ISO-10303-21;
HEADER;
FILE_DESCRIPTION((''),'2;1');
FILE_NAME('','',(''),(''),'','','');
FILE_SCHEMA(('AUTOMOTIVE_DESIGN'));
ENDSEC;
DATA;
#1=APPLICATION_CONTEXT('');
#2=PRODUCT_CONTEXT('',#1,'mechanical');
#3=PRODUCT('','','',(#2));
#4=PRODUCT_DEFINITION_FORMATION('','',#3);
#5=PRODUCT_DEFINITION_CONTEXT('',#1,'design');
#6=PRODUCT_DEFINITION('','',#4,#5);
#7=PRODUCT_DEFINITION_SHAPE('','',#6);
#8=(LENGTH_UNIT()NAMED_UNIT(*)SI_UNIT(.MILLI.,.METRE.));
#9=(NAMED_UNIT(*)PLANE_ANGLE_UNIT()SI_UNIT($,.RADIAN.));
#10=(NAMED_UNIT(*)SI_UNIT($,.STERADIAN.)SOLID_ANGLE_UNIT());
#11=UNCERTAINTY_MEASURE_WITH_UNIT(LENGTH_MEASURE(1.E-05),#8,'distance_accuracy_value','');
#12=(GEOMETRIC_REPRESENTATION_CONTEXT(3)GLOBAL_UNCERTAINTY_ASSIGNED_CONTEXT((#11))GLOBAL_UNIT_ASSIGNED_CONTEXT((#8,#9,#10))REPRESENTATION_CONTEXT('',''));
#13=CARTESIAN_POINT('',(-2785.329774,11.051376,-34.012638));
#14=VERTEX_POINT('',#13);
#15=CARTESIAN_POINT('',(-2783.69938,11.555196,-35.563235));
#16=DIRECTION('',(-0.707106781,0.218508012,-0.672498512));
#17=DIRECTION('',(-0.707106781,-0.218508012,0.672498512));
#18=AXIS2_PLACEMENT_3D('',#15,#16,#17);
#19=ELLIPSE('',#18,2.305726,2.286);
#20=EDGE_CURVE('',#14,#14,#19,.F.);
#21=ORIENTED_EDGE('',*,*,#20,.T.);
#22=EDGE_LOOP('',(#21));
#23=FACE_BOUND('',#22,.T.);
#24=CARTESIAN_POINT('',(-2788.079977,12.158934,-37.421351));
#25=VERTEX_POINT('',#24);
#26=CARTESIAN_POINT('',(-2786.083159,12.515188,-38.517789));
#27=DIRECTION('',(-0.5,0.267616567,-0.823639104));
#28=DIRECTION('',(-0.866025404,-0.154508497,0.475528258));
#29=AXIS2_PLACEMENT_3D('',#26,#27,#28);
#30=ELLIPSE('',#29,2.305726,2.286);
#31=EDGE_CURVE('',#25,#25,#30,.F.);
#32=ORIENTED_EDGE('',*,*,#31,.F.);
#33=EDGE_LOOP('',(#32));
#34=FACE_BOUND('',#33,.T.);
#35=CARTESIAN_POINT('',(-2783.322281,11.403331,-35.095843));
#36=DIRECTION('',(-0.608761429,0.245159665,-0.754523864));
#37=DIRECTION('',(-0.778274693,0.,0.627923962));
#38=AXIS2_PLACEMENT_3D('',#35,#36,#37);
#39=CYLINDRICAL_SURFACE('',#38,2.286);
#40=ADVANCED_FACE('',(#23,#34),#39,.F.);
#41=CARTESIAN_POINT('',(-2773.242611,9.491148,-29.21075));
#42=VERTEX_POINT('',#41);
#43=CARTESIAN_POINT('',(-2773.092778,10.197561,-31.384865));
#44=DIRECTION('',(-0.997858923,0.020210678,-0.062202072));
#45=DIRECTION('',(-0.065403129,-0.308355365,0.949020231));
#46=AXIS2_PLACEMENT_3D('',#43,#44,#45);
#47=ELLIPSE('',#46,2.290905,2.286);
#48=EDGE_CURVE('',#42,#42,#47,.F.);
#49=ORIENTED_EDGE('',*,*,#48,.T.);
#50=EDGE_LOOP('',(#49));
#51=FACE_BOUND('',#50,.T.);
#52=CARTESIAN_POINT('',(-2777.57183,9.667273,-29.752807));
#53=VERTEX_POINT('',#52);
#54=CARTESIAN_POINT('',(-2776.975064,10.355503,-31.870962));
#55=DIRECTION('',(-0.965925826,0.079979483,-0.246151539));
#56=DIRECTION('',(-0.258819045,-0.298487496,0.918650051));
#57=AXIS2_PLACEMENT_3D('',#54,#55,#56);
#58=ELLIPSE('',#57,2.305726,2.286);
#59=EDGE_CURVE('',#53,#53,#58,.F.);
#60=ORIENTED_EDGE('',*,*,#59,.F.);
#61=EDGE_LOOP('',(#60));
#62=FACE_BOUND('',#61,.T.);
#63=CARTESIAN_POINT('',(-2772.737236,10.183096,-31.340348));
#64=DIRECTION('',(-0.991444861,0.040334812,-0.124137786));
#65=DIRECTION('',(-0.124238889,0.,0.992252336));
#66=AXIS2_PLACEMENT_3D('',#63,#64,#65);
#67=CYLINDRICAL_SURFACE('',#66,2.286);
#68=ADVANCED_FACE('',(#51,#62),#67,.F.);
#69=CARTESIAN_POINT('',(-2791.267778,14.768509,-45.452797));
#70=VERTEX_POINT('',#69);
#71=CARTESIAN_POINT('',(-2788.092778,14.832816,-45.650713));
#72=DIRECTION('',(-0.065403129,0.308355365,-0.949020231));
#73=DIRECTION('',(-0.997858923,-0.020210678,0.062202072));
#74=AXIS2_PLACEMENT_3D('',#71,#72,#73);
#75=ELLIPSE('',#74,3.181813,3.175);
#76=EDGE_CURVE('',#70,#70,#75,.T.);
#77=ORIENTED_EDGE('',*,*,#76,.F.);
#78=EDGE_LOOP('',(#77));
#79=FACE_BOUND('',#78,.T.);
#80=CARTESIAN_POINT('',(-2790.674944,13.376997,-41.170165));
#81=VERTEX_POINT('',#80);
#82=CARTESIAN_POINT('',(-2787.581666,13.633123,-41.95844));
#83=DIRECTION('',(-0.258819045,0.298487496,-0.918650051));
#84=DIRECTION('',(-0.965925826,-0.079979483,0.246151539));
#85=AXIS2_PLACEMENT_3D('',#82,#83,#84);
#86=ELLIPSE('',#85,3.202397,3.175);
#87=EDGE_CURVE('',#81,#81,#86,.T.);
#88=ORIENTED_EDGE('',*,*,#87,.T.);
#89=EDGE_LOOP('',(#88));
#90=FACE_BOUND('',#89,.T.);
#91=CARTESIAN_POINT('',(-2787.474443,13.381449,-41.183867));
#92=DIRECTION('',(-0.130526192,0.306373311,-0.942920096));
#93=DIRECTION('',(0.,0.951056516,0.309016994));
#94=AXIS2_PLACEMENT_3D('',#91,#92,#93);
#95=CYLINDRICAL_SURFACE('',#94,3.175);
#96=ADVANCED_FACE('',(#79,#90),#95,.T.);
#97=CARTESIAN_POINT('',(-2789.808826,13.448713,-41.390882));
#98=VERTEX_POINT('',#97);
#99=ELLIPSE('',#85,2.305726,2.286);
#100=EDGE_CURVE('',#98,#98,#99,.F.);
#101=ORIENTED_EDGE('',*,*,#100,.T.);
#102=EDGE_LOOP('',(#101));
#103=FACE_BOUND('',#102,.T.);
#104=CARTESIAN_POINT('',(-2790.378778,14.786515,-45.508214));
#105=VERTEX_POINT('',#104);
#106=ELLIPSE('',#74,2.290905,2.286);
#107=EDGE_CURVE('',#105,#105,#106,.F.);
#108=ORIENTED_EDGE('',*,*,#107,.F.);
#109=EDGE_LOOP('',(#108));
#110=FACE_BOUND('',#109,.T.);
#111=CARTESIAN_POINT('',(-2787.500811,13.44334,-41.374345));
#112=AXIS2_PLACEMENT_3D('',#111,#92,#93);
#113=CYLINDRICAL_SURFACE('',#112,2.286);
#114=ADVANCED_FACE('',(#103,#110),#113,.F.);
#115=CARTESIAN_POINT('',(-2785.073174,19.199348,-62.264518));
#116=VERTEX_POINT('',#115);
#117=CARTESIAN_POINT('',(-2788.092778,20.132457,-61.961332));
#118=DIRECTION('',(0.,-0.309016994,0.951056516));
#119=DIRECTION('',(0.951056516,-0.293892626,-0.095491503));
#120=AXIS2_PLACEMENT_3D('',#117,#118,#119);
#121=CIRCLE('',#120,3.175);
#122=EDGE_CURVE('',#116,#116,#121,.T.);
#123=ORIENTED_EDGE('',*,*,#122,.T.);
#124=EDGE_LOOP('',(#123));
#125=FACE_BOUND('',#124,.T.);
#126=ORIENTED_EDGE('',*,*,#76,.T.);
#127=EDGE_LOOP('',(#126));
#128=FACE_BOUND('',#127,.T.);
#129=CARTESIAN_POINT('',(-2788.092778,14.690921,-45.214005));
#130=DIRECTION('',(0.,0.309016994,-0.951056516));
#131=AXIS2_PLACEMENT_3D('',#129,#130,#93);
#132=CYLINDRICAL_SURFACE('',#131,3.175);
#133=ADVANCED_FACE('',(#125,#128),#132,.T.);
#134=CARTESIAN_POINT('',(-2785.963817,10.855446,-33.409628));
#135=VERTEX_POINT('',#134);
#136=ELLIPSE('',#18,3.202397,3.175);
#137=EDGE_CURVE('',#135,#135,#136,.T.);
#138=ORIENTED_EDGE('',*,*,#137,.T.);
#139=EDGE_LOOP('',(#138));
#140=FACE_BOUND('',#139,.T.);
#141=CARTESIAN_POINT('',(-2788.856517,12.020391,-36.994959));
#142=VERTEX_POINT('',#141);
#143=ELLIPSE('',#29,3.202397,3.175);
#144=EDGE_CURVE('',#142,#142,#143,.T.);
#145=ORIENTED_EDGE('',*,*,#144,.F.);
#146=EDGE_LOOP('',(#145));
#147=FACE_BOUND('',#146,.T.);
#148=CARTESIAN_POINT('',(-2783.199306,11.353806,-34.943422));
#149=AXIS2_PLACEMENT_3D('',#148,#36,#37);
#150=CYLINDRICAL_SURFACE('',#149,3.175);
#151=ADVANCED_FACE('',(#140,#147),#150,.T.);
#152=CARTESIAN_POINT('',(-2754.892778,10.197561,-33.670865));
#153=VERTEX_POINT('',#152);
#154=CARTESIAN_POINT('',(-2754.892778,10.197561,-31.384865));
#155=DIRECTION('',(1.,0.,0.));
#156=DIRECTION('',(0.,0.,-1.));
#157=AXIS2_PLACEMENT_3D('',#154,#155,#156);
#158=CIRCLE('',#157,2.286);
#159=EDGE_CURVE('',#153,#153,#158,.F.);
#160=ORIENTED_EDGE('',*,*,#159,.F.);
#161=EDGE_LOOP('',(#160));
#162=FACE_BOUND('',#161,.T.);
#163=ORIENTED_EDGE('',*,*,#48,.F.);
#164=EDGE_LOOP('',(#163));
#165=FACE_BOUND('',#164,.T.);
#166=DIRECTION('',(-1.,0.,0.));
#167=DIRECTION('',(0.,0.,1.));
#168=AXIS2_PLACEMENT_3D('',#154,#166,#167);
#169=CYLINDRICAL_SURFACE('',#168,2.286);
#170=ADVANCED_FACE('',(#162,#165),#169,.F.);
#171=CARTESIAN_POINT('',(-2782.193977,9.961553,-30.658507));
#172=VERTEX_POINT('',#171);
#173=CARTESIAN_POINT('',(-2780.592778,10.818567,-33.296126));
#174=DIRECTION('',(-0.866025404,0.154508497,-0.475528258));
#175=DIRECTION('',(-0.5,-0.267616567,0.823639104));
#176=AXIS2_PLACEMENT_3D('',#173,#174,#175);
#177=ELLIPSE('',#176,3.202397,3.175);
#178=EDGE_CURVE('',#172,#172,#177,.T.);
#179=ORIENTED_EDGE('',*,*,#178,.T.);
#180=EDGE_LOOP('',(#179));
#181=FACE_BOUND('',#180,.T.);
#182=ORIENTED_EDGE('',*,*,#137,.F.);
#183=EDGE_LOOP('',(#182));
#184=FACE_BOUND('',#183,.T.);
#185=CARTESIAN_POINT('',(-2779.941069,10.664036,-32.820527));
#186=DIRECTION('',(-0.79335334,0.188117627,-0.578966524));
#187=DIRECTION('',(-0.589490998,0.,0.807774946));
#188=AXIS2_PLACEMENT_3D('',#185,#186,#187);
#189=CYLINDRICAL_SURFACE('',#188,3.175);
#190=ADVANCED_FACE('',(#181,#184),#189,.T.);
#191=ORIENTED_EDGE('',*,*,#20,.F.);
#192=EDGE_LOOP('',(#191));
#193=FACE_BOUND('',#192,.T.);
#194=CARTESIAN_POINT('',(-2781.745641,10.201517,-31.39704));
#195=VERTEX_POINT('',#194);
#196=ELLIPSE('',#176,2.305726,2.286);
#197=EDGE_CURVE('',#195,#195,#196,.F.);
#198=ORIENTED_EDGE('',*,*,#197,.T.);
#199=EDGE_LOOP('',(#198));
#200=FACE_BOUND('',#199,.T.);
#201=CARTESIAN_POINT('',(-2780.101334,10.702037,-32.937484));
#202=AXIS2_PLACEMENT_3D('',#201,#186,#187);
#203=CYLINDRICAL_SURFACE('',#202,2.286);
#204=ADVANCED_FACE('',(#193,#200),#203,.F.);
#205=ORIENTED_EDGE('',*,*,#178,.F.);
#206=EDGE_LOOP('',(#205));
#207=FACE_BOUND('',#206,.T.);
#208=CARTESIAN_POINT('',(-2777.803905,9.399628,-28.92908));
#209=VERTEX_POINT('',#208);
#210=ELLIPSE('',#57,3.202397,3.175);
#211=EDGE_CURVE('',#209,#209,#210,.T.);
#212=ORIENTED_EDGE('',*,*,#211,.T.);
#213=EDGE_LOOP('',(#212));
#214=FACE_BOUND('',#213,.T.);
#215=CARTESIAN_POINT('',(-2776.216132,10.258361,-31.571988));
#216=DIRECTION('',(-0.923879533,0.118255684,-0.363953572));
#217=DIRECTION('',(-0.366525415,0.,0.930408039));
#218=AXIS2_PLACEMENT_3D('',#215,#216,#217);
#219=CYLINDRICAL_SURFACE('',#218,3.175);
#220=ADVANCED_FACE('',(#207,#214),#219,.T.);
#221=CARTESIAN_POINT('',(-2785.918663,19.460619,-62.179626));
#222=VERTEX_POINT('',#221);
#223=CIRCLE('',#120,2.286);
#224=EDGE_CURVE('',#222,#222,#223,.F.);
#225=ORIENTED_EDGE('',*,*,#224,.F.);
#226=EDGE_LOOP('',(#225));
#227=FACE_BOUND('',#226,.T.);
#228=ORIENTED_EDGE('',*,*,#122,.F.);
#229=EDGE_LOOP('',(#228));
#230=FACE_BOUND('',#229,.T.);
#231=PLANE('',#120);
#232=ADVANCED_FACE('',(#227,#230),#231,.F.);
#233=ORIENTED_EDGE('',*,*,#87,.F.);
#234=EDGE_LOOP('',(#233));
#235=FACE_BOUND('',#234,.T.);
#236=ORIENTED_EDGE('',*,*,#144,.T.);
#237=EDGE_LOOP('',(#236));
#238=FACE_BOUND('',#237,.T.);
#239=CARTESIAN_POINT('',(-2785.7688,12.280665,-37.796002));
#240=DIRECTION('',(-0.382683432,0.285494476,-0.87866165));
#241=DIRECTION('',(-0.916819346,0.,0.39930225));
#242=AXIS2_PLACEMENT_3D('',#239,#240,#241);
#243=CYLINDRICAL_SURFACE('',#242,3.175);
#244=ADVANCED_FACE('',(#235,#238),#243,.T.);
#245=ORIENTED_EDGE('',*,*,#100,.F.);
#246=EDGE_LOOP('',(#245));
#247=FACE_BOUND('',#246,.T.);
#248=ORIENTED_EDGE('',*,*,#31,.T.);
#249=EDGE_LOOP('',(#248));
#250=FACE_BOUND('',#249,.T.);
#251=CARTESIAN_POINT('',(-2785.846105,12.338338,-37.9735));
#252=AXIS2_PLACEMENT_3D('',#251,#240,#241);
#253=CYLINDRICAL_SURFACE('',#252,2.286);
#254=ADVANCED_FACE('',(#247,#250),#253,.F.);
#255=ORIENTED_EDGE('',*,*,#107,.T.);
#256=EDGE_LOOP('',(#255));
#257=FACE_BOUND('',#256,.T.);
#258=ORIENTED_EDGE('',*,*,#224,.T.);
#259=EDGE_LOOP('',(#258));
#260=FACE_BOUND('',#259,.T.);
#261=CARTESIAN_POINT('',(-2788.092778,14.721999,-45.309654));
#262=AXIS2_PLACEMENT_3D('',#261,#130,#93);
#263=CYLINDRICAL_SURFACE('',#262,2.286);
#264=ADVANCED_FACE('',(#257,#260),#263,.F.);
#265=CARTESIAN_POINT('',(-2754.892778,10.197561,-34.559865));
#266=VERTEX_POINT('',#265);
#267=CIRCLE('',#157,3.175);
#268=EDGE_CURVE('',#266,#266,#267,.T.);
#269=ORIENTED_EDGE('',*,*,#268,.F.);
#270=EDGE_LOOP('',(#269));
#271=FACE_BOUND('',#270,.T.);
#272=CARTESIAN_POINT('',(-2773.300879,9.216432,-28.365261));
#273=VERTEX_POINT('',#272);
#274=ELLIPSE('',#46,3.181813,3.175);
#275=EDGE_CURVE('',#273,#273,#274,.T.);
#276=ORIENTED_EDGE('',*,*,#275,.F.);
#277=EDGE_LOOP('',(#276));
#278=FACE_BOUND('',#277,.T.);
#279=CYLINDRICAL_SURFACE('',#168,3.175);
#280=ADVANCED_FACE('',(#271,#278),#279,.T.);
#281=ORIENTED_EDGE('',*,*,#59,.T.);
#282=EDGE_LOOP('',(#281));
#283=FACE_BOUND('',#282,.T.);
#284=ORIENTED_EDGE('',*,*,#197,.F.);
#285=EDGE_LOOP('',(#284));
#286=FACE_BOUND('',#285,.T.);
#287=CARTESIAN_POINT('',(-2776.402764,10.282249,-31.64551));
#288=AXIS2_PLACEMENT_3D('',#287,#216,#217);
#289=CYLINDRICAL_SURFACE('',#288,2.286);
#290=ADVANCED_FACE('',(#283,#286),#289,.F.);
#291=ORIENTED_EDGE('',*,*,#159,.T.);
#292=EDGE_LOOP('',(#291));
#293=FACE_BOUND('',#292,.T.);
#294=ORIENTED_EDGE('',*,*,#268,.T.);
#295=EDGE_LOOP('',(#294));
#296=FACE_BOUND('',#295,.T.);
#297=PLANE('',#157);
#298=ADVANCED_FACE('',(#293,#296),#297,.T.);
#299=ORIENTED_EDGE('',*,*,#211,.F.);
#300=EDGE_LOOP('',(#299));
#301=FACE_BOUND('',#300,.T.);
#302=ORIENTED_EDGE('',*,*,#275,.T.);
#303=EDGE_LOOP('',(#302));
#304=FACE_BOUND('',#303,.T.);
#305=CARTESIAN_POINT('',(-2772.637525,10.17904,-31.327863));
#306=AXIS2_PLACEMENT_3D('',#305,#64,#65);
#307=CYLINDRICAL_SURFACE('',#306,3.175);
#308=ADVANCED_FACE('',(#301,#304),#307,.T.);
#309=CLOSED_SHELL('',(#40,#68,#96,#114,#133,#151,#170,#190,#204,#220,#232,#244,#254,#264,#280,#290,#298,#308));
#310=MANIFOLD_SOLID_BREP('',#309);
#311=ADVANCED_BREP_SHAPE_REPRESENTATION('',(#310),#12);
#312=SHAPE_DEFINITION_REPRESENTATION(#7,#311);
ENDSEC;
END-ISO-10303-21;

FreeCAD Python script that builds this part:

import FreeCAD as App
import Part
import Sketcher

V = App.Vector
Q = App.Units.Quantity

doc = App.newDocument("Part")
body = doc.addObject("PartDesign::Body", "Body")

# Sketch on YZ plane
sketch1 = body.newObject("Sketcher::SketchObject", "Sketch")
sketch1.AttachmentSupport = (doc.getObject("YZ_Plane"), [""])
sketch1.MapMode = "FlatFace"
sketch1.AttachmentOffset = App.Placement(V(0, 0, -2754.892778), App.Rotation())
sketch1.addGeometry([
    Part.Circle(V(10.2, -31.4, 0), V(0, 0, 1), 3.2),
    Part.Circle(V(10.2, -31.4, 0), V(0, 0, 1), 2.3),
], False)
sketch1.addConstraint([
    Sketcher.Constraint("Coincident", 1, 3, 0, 3),
    Sketcher.Constraint("Diameter", 0, Q("0.25 in")),
    Sketcher.Constraint("Diameter", 1, Q("0.18 in")),
    Sketcher.Constraint("DistanceX", -1, 1, 0, 3, 10.197561),
    Sketcher.Constraint("DistanceY", 0, 3, -1, 1, 31.384865),
])

# Sketch on an angled plane
sketch2 = body.newObject("Sketcher::SketchObject", "Sketch001")
sketch2.Placement = App.Placement(V(0, 0, 0), App.Rotation(V(0, -0.309016994, 0.951056516), V(0.999999999, 0, 0), V(0, 0.951056516, 0.309016994), "ZXY"))
sketch2.addGeometry([
    Part.LineSegment(V(-33, -2754.9, 0), V(-33, -2773.1, 0)),  # 0
    Part.LineSegment(V(-33, -2773.1, 0), V(-33.5, -2777, 0)),  # 1
    Part.LineSegment(V(-33.5, -2777, 0), V(-35, -2780.6, 0)),  # 2
    Part.LineSegment(V(-35, -2780.6, 0), V(-37.4, -2783.7, 0)),  # 3
    Part.LineSegment(V(-37.4, -2783.7, 0), V(-40.5, -2786.1, 0)),  # 4
    Part.LineSegment(V(-40.5, -2786.1, 0), V(-44.1, -2787.6, 0)),  # 5
    Part.LineSegment(V(-44.1, -2787.6, 0), V(-48, -2788.1, 0)),  # 6
    Part.LineSegment(V(-48, -2788.1, 0), V(-65.1, -2788.1, 0)),  # 7
], False)
sketch2.addConstraint([
    Sketcher.Constraint("Coincident", 0, 2, 1, 1),
    Sketcher.Constraint("Coincident", 1, 2, 2, 1),
    Sketcher.Constraint("Coincident", 2, 2, 3, 1),
    Sketcher.Constraint("Coincident", 3, 2, 4, 1),
    Sketcher.Constraint("Coincident", 4, 2, 5, 1),
    Sketcher.Constraint("Coincident", 5, 2, 6, 1),
    Sketcher.Constraint("Coincident", 6, 2, 7, 1),
    Sketcher.Constraint("Vertical", 0),
    Sketcher.Constraint("Horizontal", 7),
    Sketcher.Constraint("Equal", 1, 2),
    Sketcher.Constraint("Equal", 2, 3),
    Sketcher.Constraint("Equal", 3, 4),
    Sketcher.Constraint("Equal", 4, 5),
    Sketcher.Constraint("Equal", 5, 6),
    Sketcher.Constraint("Angle", 1, Q("-97.5 deg")),
    Sketcher.Constraint("Angle", 2, Q("-112.5 deg")),
    Sketcher.Constraint("Angle", 3, Q("-127.5 deg")),
    Sketcher.Constraint("Angle", 4, Q("-142.5 deg")),
    Sketcher.Constraint("Angle", 5, Q("-157.5 deg")),
    Sketcher.Constraint("Angle", 6, Q("-172.5 deg")),
    Sketcher.Constraint("DistanceX", 7, 2, 7, 1, 17.15),
    Sketcher.Constraint("DistanceY", 0, 2, 0, 1, 18.2),
    Sketcher.Constraint("DistanceX", 0, 1, -1, 1, 33.0),
    Sketcher.Constraint("DistanceX", 3, 2, -1, 1, 37.393398),
    Sketcher.Constraint("DistanceY", 1, 2, -1, 1, 2776.97506),
])
doc.recompute()

additivepipe = body.newObject("PartDesign::AdditivePipe", "AdditivePipe")
additivepipe.Profile = sketch1
additivepipe.Spine = (sketch2, ["Edge1", "Edge2", "Edge3", "Edge4", "Edge5", "Edge6", "Edge7", "Edge8"])
additivepipe.Transition = "Right corner"

doc.recompute()
